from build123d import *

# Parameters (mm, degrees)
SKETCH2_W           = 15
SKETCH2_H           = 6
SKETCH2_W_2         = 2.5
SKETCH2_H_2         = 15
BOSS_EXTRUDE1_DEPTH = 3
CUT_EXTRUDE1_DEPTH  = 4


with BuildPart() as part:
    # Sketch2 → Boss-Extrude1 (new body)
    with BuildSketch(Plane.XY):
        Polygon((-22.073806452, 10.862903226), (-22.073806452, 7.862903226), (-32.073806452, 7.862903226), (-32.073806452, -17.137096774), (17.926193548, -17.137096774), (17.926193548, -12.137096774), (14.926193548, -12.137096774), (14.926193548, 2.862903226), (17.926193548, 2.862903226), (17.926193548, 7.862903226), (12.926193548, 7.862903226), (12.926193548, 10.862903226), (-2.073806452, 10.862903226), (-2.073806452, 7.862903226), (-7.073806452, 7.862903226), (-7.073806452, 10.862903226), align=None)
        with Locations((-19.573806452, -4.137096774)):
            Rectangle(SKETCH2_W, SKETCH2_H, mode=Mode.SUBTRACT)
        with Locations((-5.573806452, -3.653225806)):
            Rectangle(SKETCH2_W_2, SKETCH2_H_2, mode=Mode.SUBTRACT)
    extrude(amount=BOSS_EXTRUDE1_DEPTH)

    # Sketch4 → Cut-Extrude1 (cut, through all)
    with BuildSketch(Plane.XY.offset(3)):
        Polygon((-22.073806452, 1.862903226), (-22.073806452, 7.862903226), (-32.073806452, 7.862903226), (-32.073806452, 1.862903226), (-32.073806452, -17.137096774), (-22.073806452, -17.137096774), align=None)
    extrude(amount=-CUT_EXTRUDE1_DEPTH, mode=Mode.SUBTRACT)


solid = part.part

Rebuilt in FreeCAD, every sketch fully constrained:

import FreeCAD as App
import Part
import Sketcher
from FreeCAD import Vector
Q = App.Units.Quantity

doc = App.newDocument("Part")
params = doc.addObject("Spreadsheet::Sheet", "Params")
for row, (alias, value) in enumerate([
    ("sketch1_width", "10 mm"),
    ("sketch1_width2", "50 mm"),
    ("sketch1_width3", "3 mm"),
    ("sketch1_width4", "5 mm"),
    ("sketch1_height", "6 mm"),
    ("pad1_length", "3 mm"),
    ("sketch2_width", "10 mm"),
    ("sketch2_height", "25 mm"),
], start=1):
    params.set(f"A{row}", alias)
    params.set(f"B{row}", "=" + value)
    params.setAlias(f"B{row}", alias)

body = doc.addObject("PartDesign::Body", "Body")

sketch1 = body.newObject("Sketcher::SketchObject", "Sketch")
sketch1.AttachmentSupport = (doc.getObject("XY_Plane"), [""])
sketch1.MapMode = "FlatFace"
sketch1.addGeometry([
    Part.LineSegment(Vector(-22.073806, 10.862903, 0), Vector(-22.073806, 7.862903, 0)),
    Part.LineSegment(Vector(-22.073806, 7.862903, 0), Vector(-32.073806, 7.862903, 0)),
    Part.LineSegment(Vector(-32.073806, 7.862903, 0), Vector(-32.073806, -17.137097, 0)),
    Part.LineSegment(Vector(-32.073806, -17.137097, 0), Vector(17.926194, -17.137097, 0)),
    Part.LineSegment(Vector(17.926194, -17.137097, 0), Vector(17.926194, -12.137097, 0)),
    Part.LineSegment(Vector(17.926194, -12.137097, 0), Vector(14.926194, -12.137097, 0)),
    Part.LineSegment(Vector(14.926194, -12.137097, 0), Vector(14.926194, 2.862903, 0)),
    Part.LineSegment(Vector(14.926194, 2.862903, 0), Vector(17.926194, 2.862903, 0)),
    Part.LineSegment(Vector(17.926194, 2.862903, 0), Vector(17.926194, 7.862903, 0)),
    Part.LineSegment(Vector(17.926194, 7.862903, 0), Vector(12.926194, 7.862903, 0)),
    Part.LineSegment(Vector(12.926194, 7.862903, 0), Vector(12.926194, 10.862903, 0)),
    Part.LineSegment(Vector(12.926194, 10.862903, 0), Vector(-2.073806, 10.862903, 0)),
    Part.LineSegment(Vector(-2.073806, 10.862903, 0), Vector(-2.073806, 7.862903, 0)),
    Part.LineSegment(Vector(-2.073806, 7.862903, 0), Vector(-7.073806, 7.862903, 0)),
    Part.LineSegment(Vector(-7.073806, 7.862903, 0), Vector(-7.073806, 10.862903, 0)),
    Part.LineSegment(Vector(-7.073806, 10.862903, 0), Vector(-22.073806, 10.862903, 0)),
    Part.LineSegment(Vector(-12.073806, -7.137097, 0), Vector(-27.073806, -7.137097, 0)),
    Part.LineSegment(Vector(-27.073806, -7.137097, 0), Vector(-27.073806, -1.137097, 0)),
    Part.LineSegment(Vector(-27.073806, -1.137097, 0), Vector(-12.073806, -1.137097, 0)),
    Part.LineSegment(Vector(-12.073806, -1.137097, 0), Vector(-12.073806, -7.137097, 0)),
    Part.LineSegment(Vector(-4.323806, -11.153226, 0), Vector(-6.823806, -11.153226, 0)),
    Part.LineSegment(Vector(-6.823806, -11.153226, 0), Vector(-6.823806, 3.846774, 0)),
    Part.LineSegment(Vector(-6.823806, 3.846774, 0), Vector(-4.323806, 3.846774, 0)),
    Part.LineSegment(Vector(-4.323806, 3.846774, 0), Vector(-4.323806, -11.153226, 0)),
], False)
sketch1.addConstraint([
    Sketcher.Constraint("Coincident", 0, 2, 1, 1),
    Sketcher.Constraint("Coincident", 1, 2, 2, 1),
    Sketcher.Constraint("Coincident", 2, 2, 3, 1),
    Sketcher.Constraint("Coincident", 3, 2, 4, 1),
    Sketcher.Constraint("Coincident", 4, 2, 5, 1),
    Sketcher.Constraint("Coincident", 5, 2, 6, 1),
    Sketcher.Constraint("Coincident", 6, 2, 7, 1),
    Sketcher.Constraint("Coincident", 7, 2, 8, 1),
    Sketcher.Constraint("Coincident", 8, 2, 9, 1),
    Sketcher.Constraint("Coincident", 9, 2, 10, 1),
    Sketcher.Constraint("Coincident", 10, 2, 11, 1),
    Sketcher.Constraint("Coincident", 11, 2, 12, 1),
    Sketcher.Constraint("Coincident", 12, 2, 13, 1),
    Sketcher.Constraint("Coincident", 13, 2, 14, 1),
    Sketcher.Constraint("Coincident", 14, 2, 15, 1),
    Sketcher.Constraint("Coincident", 15, 2, 0, 1),
    Sketcher.Constraint("Coincident", 16, 2, 17, 1),
    Sketcher.Constraint("Coincident", 17, 2, 18, 1),
    Sketcher.Constraint("Coincident", 18, 2, 19, 1),
    Sketcher.Constraint("Coincident", 19, 2, 16, 1),
    Sketcher.Constraint("Coincident", 20, 2, 21, 1),
    Sketcher.Constraint("Coincident", 21, 2, 22, 1),
    Sketcher.Constraint("Coincident", 22, 2, 23, 1),
    Sketcher.Constraint("Coincident", 23, 2, 20, 1),
    Sketcher.Constraint("Vertical", 0),
    Sketcher.Constraint("Horizontal", 1),
    Sketcher.Constraint("Vertical", 2),
    Sketcher.Constraint("Horizontal", 3),
    Sketcher.Constraint("Vertical", 4),
    Sketcher.Constraint("Horizontal", 5),
    Sketcher.Constraint("Vertical", 6),
    Sketcher.Constraint("Horizontal", 7),
    Sketcher.Constraint("Vertical", 8),
    Sketcher.Constraint("Horizontal", 9),
    Sketcher.Constraint("Vertical", 10),
    Sketcher.Constraint("Horizontal", 11),
    Sketcher.Constraint("Vertical", 12),
    Sketcher.Constraint("Horizontal", 13),
    Sketcher.Constraint("Vertical", 14),
    Sketcher.Constraint("Horizontal", 15),
    Sketcher.Constraint("Horizontal", 16),
    Sketcher.Constraint("Vertical", 17),
    Sketcher.Constraint("Horizontal", 18),
    Sketcher.Constraint("Vertical", 19),
    Sketcher.Constraint("Horizontal", 20),
    Sketcher.Constraint("Vertical", 21),
    Sketcher.Constraint("Horizontal", 22),
    Sketcher.Constraint("Vertical", 23),
    Sketcher.Constraint("Horizontal", 1, 2, 8, 2),
    Sketcher.Constraint("Horizontal", 9, 2, 12, 2),
    Sketcher.Constraint("Horizontal", 11, 2, 14, 2),
    Sketcher.Constraint("Vertical", 4, 2, 7, 2),
    Sketcher.Constraint("Equal", 9, 13),
    Sketcher.Constraint("Equal", 11, 15),
    Sketcher.Constraint("Equal", 15, 16),
    Sketcher.Constraint("Equal", 7, 0),
    Sketcher.Constraint("Equal", 13, 4),
    Sketcher.Constraint("Equal", 18, 6),
    Sketcher.Constraint("Equal", 4, 8),
    Sketcher.Constraint("Equal", 6, 21),
    Sketcher.Constraint("DistanceX", 1, 2, 1, 1, Q("10 mm")),
    Sketcher.Constraint("DistanceX", 3, 1, 3, 2, Q("50 mm")),
    Sketcher.Constraint("DistanceX", 5, 2, 5, 1, Q("3 mm")),
    Sketcher.Constraint("DistanceX", 9, 2, 9, 1, Q("5 mm")),
    Sketcher.Constraint("DistanceY", 17, 1, 17, 2, Q("6 mm")),
    Sketcher.Constraint("DistanceX", 20, 2, 20, 1, Q("2.5 mm")),
    Sketcher.Constraint("DistanceX", 2, 2, 16, 2, Q("5 mm")),
    Sketcher.Constraint("DistanceY", 2, 2, 16, 2, Q("10 mm")),
    Sketcher.Constraint("DistanceX", 19, 2, 20, 2, Q("5.25 mm")),
    Sketcher.Constraint("DistanceY", 20, 2, 19, 2, Q("4.016129 mm")),
    Sketcher.Constraint("DistanceX", 0, 2, -1, 1, Q("22.073806 mm")),
    Sketcher.Constraint("DistanceY", -1, 1, 0, 2, Q("7.862903 mm")),
])
sketch1.setExpression("Constraints[60]", "Params.sketch1_width")
sketch1.setExpression("Constraints[61]", "Params.sketch1_width2")
sketch1.setExpression("Constraints[62]", "Params.sketch1_width3")
sketch1.setExpression("Constraints[63]", "Params.sketch1_width4")
sketch1.setExpression("Constraints[64]", "Params.sketch1_height")
pad1 = body.newObject("PartDesign::Pad", "Pad")
pad1.Profile = sketch1
pad1.setExpression("Length", "Params.pad1_length")

sketch2 = body.newObject("Sketcher::SketchObject", "Sketch001")
sketch2.AttachmentSupport = (doc.getObject("XY_Plane"), [""])
sketch2.MapMode = "FlatFace"
sketch2.AttachmentOffset = App.Placement(Vector(0, 0, 3), App.Rotation())
sketch2.addGeometry([
    Part.LineSegment(Vector(-22.073806, 7.862903, 0), Vector(-32.073806, 7.862903, 0)),
    Part.LineSegment(Vector(-32.073806, 7.862903, 0), Vector(-32.073806, -17.137097, 0)),
    Part.LineSegment(Vector(-32.073806, -17.137097, 0), Vector(-22.073806, -17.137097, 0)),
    Part.LineSegment(Vector(-22.073806, -17.137097, 0), Vector(-22.073806, 7.862903, 0)),
], False)
sketch2.addConstraint([
    Sketcher.Constraint("Coincident", 0, 2, 1, 1),
    Sketcher.Constraint("Coincident", 1, 2, 2, 1),
    Sketcher.Constraint("Coincident", 2, 2, 3, 1),
    Sketcher.Constraint("Coincident", 3, 2, 0, 1),
    Sketcher.Constraint("Horizontal", 0),
    Sketcher.Constraint("Vertical", 1),
    Sketcher.Constraint("Horizontal", 2),
    Sketcher.Constraint("Vertical", 3),
    Sketcher.Constraint("DistanceX", 0, 2, 0, 1, Q("10 mm")),
    Sketcher.Constraint("DistanceY", 1, 2, 1, 1, Q("25 mm")),
    Sketcher.Constraint("DistanceX", 0, 2, -1, 1, Q("32.073806 mm")),
    Sketcher.Constraint("DistanceY", -1, 1, 0, 2, Q("7.862903 mm")),
])
sketch2.setExpression("Constraints[8]", "Params.sketch2_width")
sketch2.setExpression("Constraints[9]", "Params.sketch2_height")
pocket1 = body.newObject("PartDesign::Pocket", "Pocket")
pocket1.Profile = sketch2
pocket1.Type = "ThroughAll"

doc.recompute()
